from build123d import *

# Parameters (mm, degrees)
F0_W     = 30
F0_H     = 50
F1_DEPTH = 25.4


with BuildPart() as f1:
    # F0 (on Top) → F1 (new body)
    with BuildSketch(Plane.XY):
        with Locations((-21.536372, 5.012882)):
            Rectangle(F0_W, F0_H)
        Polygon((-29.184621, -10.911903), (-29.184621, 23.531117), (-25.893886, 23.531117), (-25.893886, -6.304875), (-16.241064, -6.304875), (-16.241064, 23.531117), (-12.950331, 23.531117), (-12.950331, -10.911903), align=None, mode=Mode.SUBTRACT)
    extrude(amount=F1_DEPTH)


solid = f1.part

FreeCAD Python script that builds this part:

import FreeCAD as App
import Part
import Sketcher

V = App.Vector
Q = App.Units.Quantity


def add_polygon(sketch, points):
    """Adds a closed chain of lines whose ends are joined by coincident constraints."""
    first, n = sketch.GeometryCount, len(points)
    for a, b in zip(points, points[1:] + points[:1]):
        sketch.addGeometry(Part.LineSegment(App.Vector(*a, 0), App.Vector(*b, 0)), False)
    for i in range(n):
        sketch.addConstraint(Sketcher.Constraint("Coincident", first + i, 2, first + (i + 1) % n, 1))

doc = App.newDocument("Part")
body = doc.addObject("PartDesign::Body", "Body")

# Sketch on XY plane
sketch1 = body.newObject("Sketcher::SketchObject", "Sketch")
sketch1.AttachmentSupport = (doc.getObject("XY_Plane"), [""])
sketch1.MapMode = "FlatFace"
add_polygon(sketch1, [(-36.536372, 30.012882), (-36.536372, -19.987118), (-6.536372, -19.987118), (-6.536372, 30.012882)])  # lines 0-3
add_polygon(sketch1, [(-12.950331, -10.911903), (-29.184621, -10.911903), (-29.184621, 23.531117), (-25.893886, 23.531117), (-25.893886, -6.304875), (-16.241064, -6.304875), (-16.241064, 23.531117), (-12.950331, 23.531117)])  # lines 4-11
sketch1.addConstraint([
    Sketcher.Constraint("Vertical", 0),
    Sketcher.Constraint("Horizontal", 1),
    Sketcher.Constraint("Vertical", 2),
    Sketcher.Constraint("Horizontal", 3),
    Sketcher.Constraint("Horizontal", 4),
    Sketcher.Constraint("Vertical", 5),
    Sketcher.Constraint("Horizontal", 6),
    Sketcher.Constraint("Vertical", 7),
    Sketcher.Constraint("Horizontal", 8),
    Sketcher.Constraint("Vertical", 9),
    Sketcher.Constraint("Horizontal", 10),
    Sketcher.Constraint("Vertical", 11),
    Sketcher.Constraint("Horizontal", 6, 2, 9, 2),
    Sketcher.Constraint("DistanceX", 1, 1, 1, 2, Q("30 mm")),
    Sketcher.Constraint("DistanceY", 0, 2, 0, 1, Q("50 mm")),
    Sketcher.Constraint("DistanceX", 4, 2, 4, 1, Q("16.23429 mm")),
    Sketcher.Constraint("DistanceX", 8, 1, 8, 2, Q("9.652822 mm")),
    Sketcher.Constraint("DistanceY", 5, 1, 5, 2, Q("34.44302 mm")),
    Sketcher.Constraint("DistanceY", 7, 2, 7, 1, Q("29.835992 mm")),
    Sketcher.Constraint("DistanceX", 6, 1, 6, 2, Q("3.290735 mm")),
    Sketcher.Constraint("DistanceX", 4, 2, -1, 1, Q("29.184621 mm")),
    Sketcher.Constraint("DistanceX", 0, 2, 4, 2, Q("7.351751 mm")),
    Sketcher.Constraint("DistanceY", 0, 2, -1, 1, Q("19.987118 mm")),
    Sketcher.Constraint("DistanceY", 4, 2, -1, 1, Q("10.911903 mm")),
])
pad1 = body.newObject("PartDesign::Pad", "Pad")
pad1.Profile = sketch1
pad1.Length = 25.4

doc.recompute()
